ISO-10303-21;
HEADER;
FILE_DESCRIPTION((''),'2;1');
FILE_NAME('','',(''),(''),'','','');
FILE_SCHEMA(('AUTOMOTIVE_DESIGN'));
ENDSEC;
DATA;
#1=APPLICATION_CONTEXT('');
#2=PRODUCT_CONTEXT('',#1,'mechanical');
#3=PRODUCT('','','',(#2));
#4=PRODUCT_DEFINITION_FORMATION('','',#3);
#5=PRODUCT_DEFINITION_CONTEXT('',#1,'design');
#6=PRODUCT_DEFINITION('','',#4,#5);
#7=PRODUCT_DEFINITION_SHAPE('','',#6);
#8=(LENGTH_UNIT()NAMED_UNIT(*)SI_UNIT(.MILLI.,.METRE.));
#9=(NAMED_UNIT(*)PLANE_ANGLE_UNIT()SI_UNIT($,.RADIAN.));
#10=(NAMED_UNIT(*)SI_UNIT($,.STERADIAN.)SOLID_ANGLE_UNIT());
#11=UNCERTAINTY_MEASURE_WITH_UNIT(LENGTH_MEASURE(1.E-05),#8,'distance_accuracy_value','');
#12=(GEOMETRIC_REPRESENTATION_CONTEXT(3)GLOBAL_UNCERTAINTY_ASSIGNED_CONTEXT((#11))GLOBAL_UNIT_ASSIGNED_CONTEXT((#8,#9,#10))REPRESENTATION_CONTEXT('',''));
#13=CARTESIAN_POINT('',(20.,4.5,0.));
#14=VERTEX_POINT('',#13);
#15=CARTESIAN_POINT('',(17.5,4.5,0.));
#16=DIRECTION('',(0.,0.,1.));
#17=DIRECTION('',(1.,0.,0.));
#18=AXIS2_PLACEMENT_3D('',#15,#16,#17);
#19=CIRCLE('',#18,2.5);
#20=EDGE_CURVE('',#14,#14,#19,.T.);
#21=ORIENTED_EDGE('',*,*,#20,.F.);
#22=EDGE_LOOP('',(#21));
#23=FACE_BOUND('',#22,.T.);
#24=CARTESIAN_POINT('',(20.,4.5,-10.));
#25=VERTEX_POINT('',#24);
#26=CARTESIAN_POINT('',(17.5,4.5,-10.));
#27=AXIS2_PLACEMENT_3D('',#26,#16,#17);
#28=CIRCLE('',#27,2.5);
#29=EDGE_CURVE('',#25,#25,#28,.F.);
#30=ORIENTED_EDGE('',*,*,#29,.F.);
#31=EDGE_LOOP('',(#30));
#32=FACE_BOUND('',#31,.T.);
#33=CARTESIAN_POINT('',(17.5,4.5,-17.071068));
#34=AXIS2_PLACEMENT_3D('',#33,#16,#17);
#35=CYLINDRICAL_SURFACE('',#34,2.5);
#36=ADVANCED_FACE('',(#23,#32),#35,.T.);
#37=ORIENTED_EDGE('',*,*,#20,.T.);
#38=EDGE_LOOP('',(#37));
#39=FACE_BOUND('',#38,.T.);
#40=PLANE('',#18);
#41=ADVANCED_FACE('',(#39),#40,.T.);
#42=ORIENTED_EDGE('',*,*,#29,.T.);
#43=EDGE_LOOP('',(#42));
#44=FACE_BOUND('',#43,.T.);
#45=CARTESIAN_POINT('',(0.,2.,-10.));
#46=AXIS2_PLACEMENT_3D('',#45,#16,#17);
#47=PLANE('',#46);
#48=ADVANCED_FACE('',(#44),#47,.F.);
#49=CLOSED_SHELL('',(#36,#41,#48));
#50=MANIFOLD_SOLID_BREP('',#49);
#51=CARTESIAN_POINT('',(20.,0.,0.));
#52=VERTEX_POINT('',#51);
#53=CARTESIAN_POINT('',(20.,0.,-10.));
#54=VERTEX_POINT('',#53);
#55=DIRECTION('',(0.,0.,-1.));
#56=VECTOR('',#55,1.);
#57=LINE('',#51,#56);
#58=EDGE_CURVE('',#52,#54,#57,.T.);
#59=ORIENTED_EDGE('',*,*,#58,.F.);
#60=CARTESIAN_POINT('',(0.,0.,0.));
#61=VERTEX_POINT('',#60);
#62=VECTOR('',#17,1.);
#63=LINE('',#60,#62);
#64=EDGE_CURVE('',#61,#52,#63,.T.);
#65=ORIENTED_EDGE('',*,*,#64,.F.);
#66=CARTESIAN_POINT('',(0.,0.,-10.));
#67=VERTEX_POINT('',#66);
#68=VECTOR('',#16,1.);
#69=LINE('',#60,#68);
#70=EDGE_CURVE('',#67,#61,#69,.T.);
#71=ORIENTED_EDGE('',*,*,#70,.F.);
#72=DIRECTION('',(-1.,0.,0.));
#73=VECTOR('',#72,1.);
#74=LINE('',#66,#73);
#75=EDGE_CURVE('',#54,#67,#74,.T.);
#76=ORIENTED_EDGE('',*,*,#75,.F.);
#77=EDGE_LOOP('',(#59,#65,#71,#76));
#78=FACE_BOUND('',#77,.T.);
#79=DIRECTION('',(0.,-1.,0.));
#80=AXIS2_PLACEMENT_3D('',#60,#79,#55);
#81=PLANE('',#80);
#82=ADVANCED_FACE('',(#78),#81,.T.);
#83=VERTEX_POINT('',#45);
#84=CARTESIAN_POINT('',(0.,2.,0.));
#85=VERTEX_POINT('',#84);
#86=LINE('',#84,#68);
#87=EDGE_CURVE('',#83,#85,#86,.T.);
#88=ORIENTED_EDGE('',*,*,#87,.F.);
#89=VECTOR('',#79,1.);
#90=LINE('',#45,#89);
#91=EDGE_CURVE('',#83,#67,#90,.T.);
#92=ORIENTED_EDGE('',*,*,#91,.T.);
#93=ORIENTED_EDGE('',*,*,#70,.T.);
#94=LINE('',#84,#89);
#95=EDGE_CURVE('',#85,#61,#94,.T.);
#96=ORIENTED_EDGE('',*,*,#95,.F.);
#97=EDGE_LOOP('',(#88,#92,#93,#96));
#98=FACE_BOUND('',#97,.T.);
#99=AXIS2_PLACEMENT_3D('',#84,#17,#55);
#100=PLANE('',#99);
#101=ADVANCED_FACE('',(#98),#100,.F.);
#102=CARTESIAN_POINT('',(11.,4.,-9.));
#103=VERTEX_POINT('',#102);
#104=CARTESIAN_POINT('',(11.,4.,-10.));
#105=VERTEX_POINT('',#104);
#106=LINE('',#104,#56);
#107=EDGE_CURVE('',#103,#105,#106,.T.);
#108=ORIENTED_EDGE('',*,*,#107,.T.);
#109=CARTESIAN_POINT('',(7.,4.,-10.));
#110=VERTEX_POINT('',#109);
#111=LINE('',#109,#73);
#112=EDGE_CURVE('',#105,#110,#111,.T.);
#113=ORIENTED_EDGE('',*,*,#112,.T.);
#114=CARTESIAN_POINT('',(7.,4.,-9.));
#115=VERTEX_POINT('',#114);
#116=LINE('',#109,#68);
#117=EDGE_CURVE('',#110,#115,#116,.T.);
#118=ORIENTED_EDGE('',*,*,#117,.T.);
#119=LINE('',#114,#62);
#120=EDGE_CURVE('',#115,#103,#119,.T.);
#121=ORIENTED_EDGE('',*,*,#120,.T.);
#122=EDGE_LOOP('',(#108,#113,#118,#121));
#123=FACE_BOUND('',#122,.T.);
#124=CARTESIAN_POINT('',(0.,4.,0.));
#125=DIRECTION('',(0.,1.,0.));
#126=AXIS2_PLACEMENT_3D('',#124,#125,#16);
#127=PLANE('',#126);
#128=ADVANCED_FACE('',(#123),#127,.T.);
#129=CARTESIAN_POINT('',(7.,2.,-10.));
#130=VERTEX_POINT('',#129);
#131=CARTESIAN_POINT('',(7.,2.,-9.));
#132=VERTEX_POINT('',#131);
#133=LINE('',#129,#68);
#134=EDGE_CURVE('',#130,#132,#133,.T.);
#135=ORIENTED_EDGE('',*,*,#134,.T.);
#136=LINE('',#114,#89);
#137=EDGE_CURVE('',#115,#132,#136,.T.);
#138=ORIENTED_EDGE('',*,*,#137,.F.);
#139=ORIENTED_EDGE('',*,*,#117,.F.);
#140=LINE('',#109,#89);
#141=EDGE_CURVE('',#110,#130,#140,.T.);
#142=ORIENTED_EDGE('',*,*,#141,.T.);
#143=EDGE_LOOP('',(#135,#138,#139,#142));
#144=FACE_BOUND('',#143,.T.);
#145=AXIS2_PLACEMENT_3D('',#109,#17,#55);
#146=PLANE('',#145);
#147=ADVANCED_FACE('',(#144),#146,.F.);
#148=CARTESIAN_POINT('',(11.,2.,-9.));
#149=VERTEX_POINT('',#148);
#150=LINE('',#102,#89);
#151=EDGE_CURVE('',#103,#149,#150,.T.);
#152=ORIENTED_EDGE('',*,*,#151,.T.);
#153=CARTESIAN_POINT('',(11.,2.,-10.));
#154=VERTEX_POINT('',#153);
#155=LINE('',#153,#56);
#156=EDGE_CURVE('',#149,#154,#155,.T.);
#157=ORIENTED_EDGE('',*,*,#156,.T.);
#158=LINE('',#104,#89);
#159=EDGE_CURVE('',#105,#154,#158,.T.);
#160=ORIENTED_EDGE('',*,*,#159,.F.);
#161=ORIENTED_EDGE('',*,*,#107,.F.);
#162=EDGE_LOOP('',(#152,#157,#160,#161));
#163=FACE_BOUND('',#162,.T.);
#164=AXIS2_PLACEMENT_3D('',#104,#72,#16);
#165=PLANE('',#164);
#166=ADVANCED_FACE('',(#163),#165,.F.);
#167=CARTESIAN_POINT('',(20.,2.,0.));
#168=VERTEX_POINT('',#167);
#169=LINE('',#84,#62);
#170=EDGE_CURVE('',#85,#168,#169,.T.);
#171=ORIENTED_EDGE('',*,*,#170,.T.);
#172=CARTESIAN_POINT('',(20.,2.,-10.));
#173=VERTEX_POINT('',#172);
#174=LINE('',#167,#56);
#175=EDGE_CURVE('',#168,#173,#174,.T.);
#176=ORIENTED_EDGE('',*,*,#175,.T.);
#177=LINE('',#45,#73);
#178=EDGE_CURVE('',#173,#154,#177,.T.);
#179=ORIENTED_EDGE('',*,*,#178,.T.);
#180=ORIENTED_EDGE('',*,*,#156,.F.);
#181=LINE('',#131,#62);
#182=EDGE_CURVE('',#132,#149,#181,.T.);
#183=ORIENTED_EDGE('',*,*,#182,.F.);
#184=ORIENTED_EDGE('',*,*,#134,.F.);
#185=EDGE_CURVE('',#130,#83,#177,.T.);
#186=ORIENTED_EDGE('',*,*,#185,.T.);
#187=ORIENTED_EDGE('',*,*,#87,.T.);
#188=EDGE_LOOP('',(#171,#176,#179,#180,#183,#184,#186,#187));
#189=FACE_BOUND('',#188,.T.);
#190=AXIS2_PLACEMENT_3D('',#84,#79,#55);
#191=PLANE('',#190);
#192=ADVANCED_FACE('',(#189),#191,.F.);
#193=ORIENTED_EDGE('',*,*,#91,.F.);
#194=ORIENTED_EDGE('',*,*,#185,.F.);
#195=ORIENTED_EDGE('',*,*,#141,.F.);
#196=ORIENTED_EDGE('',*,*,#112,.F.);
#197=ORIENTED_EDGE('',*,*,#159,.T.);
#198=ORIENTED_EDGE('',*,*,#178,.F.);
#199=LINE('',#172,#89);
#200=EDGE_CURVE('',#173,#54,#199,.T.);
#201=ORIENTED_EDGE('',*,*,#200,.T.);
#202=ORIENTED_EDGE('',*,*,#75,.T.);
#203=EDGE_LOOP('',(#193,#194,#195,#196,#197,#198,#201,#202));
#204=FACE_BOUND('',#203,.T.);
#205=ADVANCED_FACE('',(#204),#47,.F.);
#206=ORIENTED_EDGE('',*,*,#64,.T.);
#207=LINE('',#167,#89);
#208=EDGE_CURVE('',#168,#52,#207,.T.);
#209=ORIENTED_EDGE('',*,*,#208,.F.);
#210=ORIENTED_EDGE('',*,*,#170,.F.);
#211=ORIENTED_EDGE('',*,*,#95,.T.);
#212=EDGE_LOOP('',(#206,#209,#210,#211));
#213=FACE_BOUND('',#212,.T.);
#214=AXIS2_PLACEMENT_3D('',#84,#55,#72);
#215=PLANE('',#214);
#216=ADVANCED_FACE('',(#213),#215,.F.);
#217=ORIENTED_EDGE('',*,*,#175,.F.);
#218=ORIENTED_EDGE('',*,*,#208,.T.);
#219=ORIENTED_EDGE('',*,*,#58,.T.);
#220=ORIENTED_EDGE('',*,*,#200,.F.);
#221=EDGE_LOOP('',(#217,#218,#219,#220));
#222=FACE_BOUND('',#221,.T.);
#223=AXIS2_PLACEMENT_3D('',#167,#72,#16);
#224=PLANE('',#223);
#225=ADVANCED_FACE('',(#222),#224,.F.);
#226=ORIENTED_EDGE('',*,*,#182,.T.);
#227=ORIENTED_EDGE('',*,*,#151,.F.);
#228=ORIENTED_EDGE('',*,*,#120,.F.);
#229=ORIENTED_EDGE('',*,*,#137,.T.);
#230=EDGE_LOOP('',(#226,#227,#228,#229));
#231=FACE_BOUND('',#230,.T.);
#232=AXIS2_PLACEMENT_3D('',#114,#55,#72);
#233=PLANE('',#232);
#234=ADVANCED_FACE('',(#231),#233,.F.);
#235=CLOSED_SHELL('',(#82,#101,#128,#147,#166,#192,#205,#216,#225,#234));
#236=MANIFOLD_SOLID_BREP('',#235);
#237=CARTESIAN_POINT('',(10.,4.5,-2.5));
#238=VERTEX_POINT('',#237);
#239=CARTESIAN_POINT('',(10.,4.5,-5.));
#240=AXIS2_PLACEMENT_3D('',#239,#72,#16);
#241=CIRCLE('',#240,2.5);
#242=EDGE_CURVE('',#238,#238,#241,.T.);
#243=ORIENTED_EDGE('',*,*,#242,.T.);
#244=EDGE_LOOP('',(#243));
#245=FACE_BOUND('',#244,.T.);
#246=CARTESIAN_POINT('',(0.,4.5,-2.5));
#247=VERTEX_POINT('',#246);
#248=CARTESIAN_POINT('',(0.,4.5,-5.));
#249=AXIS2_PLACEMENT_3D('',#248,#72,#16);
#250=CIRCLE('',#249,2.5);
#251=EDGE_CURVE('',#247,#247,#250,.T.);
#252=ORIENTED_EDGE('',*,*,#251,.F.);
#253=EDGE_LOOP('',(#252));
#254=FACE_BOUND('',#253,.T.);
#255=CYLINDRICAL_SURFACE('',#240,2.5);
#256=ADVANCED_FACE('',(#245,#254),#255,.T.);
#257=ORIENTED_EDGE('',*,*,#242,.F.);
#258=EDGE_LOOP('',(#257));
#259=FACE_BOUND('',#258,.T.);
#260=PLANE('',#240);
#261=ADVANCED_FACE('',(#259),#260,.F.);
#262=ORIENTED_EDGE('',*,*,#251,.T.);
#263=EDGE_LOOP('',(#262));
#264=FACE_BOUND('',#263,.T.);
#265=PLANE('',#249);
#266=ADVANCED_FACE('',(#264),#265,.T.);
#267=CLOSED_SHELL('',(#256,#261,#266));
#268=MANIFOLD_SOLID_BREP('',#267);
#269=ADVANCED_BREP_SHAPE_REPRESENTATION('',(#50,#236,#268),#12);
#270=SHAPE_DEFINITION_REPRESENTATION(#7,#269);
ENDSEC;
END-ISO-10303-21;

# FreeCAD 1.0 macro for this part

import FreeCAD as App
import Part
import Sketcher
from FreeCAD import Vector
Q = App.Units.Quantity

doc = App.newDocument("Part")
body = doc.addObject("PartDesign::Body", "Body")

# Sketch on XZ plane
sketch1 = doc.addObject("Sketcher::SketchObject", "Sketch")
body.addObject(sketch1)
sketch1.AttachmentSupport = (doc.XZ_Plane, [""])
sketch1.MapMode = "FlatFace"
sketch1.addGeometry([
    Part.LineSegment(Vector(0, -10, 0), Vector(0, 0, 0)),
    Part.LineSegment(Vector(0, 0, 0), Vector(20, 0, 0)),
    Part.LineSegment(Vector(20, 0, 0), Vector(20, -10, 0)),
    Part.LineSegment(Vector(20, -10, 0), Vector(0, -10, 0)),
], False)
sketch1.addConstraint([
    Sketcher.Constraint("Coincident", 0, 2, 1, 1),
    Sketcher.Constraint("Coincident", 1, 2, 2, 1),
    Sketcher.Constraint("Coincident", 2, 2, 3, 1),
    Sketcher.Constraint("Coincident", 3, 2, 0, 1),
    Sketcher.Constraint("Vertical", 0),
    Sketcher.Constraint("Horizontal", 1),
    Sketcher.Constraint("Vertical", 2),
    Sketcher.Constraint("Horizontal", 3),
    Sketcher.Constraint("Coincident", 0, 2, -1, 1),
    Sketcher.Constraint("DistanceX", 1, 1, 1, 2, Q("20 mm")),
    Sketcher.Constraint("DistanceY", 0, 1, 0, 2, Q("10 mm")),
])
pad1 = doc.addObject("PartDesign::Pad", "Pad")
body.addObject(pad1)
pad1.Profile = sketch1
pad1.Length = 2
pad1.Reversed = True

# Sketch on XZ plane
sketch2 = doc.addObject("Sketcher::SketchObject", "Sketch001")
body.addObject(sketch2)
sketch2.AttachmentSupport = (doc.XZ_Plane, [""])
sketch2.MapMode = "FlatFace"
sketch2.AttachmentOffset = App.Placement(Vector(0, 0, -2), App.Rotation())
sketch2.addGeometry([
    Part.LineSegment(Vector(7, -10, 0), Vector(7, -9, 0)),
    Part.LineSegment(Vector(7, -9, 0), Vector(11, -9, 0)),
    Part.LineSegment(Vector(11, -9, 0), Vector(11, -10, 0)),
    Part.LineSegment(Vector(11, -10, 0), Vector(7, -10, 0)),
], False)
sketch2.addConstraint([
    Sketcher.Constraint("Coincident", 0, 2, 1, 1),
    Sketcher.Constraint("Coincident", 1, 2, 2, 1),
    Sketcher.Constraint("Coincident", 2, 2, 3, 1),
    Sketcher.Constraint("Coincident", 3, 2, 0, 1),
    Sketcher.Constraint("Vertical", 0),
    Sketcher.Constraint("Horizontal", 1),
    Sketcher.Constraint("Vertical", 2),
    Sketcher.Constraint("Horizontal", 3),
    Sketcher.Constraint("DistanceX", 1, 1, 1, 2, Q("4 mm")),
    Sketcher.Constraint("DistanceY", 0, 1, 0, 2, Q("1 mm")),
    Sketcher.Constraint("DistanceX", -1, 1, 0, 2, Q("7 mm")),
    Sketcher.Constraint("DistanceY", 0, 2, -1, 1, Q("9 mm")),
])
pad2 = doc.addObject("PartDesign::Pad", "Pad001")
body.addObject(pad2)
pad2.Profile = sketch2
pad2.Length = 2
pad2.Reversed = True
body2 = doc.addObject("PartDesign::Body", "Body001")

# Sketch on XY plane
sketch3 = doc.addObject("Sketcher::SketchObject", "Sketch002")
body2.addObject(sketch3)
sketch3.AttachmentSupport = (doc.getObject("XY_Plane001"), [""])
sketch3.MapMode = "FlatFace"
sketch3.addGeometry(Part.Circle(Vector(17.5, 4.5, 0), Vector(0, 0, 1), 2.5), False)
sketch3.addConstraint([
    Sketcher.Constraint("Diameter", 0, Q("5 mm")),
    Sketcher.Constraint("DistanceX", -1, 1, 0, 3, Q("17.5 mm")),
    Sketcher.Constraint("DistanceY", -1, 1, 0, 3, Q("4.5 mm")),
])
pad3 = doc.addObject("PartDesign::Pad", "Pad002")
body2.addObject(pad3)
pad3.Profile = sketch3
pad3.Length = 10
pad3.Reversed = True
body3 = doc.addObject("PartDesign::Body", "Body002")

# Sketch on YZ plane
sketch4 = doc.addObject("Sketcher::SketchObject", "Sketch003")
body3.addObject(sketch4)
sketch4.AttachmentSupport = (doc.getObject("YZ_Plane002"), [""])
sketch4.MapMode = "FlatFace"
sketch4.addGeometry(Part.Circle(Vector(4.5, -5, 0), Vector(0, 0, 1), 2.5), False)
sketch4.addConstraint([
    Sketcher.Constraint("Diameter", 0, Q("5 mm")),
    Sketcher.Constraint("DistanceY", 0, 3, -1, 1, Q("5 mm")),
    Sketcher.Constraint("DistanceX", -1, 1, 0, 3, Q("4.5 mm")),
])
pad4 = doc.addObject("PartDesign::Pad", "Pad003")
body3.addObject(pad4)
pad4.Profile = sketch4
pad4.Length = 10

doc.recompute()
